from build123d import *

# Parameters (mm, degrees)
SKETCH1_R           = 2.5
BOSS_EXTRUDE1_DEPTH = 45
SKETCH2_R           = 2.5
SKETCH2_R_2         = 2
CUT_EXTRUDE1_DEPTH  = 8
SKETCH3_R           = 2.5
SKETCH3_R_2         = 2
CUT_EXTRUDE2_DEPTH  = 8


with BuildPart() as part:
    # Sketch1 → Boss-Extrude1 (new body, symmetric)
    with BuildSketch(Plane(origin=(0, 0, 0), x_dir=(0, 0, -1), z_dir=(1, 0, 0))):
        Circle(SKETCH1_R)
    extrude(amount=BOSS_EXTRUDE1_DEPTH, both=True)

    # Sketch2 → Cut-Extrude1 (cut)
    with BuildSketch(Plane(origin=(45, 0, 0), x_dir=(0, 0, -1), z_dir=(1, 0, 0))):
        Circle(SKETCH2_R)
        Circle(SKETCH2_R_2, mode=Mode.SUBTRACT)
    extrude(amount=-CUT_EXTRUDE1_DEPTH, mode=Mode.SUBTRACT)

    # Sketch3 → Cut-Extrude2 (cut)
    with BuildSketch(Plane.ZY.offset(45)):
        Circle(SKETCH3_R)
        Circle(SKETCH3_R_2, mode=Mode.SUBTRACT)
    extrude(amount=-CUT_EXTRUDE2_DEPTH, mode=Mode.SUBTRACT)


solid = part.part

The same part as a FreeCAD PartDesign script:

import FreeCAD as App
import Part
import Sketcher

V = App.Vector

doc = App.newDocument("Part")
body = doc.addObject("PartDesign::Body", "Body")

# Sketch on YZ plane
sketch1 = body.newObject("Sketcher::SketchObject", "Sketch")
sketch1.AttachmentSupport = (doc.getObject("YZ_Plane"), [""])
sketch1.MapMode = "FlatFace"
sketch1.addGeometry(Part.Circle(V(0, 0, 0), V(0, 0, 1), 2.5), False)
sketch1.addConstraint([
    Sketcher.Constraint("Coincident", 0, 3, -1, 1),
    Sketcher.Constraint("Diameter", 0, 5.0),
])
pad1 = body.newObject("PartDesign::Pad", "Pad")
pad1.Profile = sketch1
pad1.Length = 90
pad1.Midplane = True

# Sketch on YZ plane
sketch2 = body.newObject("Sketcher::SketchObject", "Sketch001")
sketch2.AttachmentSupport = (doc.getObject("YZ_Plane"), [""])
sketch2.MapMode = "FlatFace"
sketch2.AttachmentOffset = App.Placement(V(0, 0, 45), App.Rotation())
sketch2.addGeometry([
    Part.Circle(V(0, 0, 0), V(0, 0, 1), 2.5),
    Part.Circle(V(0, 0, 0), V(0, 0, 1), 2),
], False)
sketch2.addConstraint([
    Sketcher.Constraint("Coincident", 0, 3, -1, 1),
    Sketcher.Constraint("Coincident", 1, 3, -1, 1),
    Sketcher.Constraint("Diameter", 0, 5.0),
    Sketcher.Constraint("Diameter", 1, 4.0),
])
pocket1 = body.newObject("PartDesign::Pocket", "Pocket")
pocket1.Profile = sketch2
pocket1.Length = 8

# Sketch on YZ plane
sketch3 = body.newObject("Sketcher::SketchObject", "Sketch002")
sketch3.AttachmentSupport = (doc.getObject("YZ_Plane"), [""])
sketch3.MapMode = "FlatFace"
sketch3.AttachmentOffset = App.Placement(V(0, 0, -45), App.Rotation())
sketch3.addGeometry([
    Part.Circle(V(0, 0, 0), V(0, 0, 1), 2.5),
    Part.Circle(V(0, 0, 0), V(0, 0, 1), 2),
], False)
sketch3.addConstraint([
    Sketcher.Constraint("Coincident", 0, 3, -1, 1),
    Sketcher.Constraint("Coincident", 1, 3, -1, 1),
    Sketcher.Constraint("Diameter", 0, 5.0),
    Sketcher.Constraint("Diameter", 1, 4.0),
])
pocket2 = body.newObject("PartDesign::Pocket", "Pocket001")
pocket2.Profile = sketch3
pocket2.Length = 8
pocket2.Reversed = True

doc.recompute()
